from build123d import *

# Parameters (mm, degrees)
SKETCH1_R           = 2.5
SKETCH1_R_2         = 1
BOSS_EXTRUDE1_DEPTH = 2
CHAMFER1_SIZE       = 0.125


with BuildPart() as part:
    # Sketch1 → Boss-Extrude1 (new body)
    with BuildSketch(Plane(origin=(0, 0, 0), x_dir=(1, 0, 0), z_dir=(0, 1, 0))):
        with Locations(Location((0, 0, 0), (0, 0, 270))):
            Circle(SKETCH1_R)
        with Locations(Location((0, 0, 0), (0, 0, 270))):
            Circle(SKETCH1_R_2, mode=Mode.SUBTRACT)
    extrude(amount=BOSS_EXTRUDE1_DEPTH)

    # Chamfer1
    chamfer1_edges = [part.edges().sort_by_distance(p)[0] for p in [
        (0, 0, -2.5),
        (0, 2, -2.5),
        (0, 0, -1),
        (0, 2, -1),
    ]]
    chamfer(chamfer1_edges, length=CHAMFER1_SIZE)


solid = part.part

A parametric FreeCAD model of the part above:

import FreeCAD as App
import Part
import Sketcher

V = App.Vector
Q = App.Units.Quantity


def edges_at(feature, points):
    """Names of the edges that pass closest to the given points."""
    edges = feature.Shape.Edges
    near = lambda p: min(range(len(edges)), key=lambda i: edges[i].distToShape(Part.Vertex(*p))[0])
    return sorted({f"Edge{near(p) + 1}" for p in points})

doc = App.newDocument("Part")
body = doc.addObject("PartDesign::Body", "Body")

# Sketch on XZ plane
sketch1 = doc.addObject("Sketcher::SketchObject", "Sketch")
body.addObject(sketch1)
sketch1.AttachmentSupport = (doc.XZ_Plane, [""])
sketch1.MapMode = "FlatFace"
sketch1.addGeometry(Part.Circle(V(0, 0, 0), V(0, 0, 1), 2.5), False)
sketch1.addGeometry(Part.Circle(V(0, 0, 0), V(0, 0, 1), 1), False)
sketch1.addConstraint(Sketcher.Constraint("Coincident", 0, 3, -1, 1))
sketch1.addConstraint(Sketcher.Constraint("Coincident", 1, 3, -1, 1))
sketch1.addConstraint(Sketcher.Constraint("Diameter", 0, Q("5 mm")))
sketch1.addConstraint(Sketcher.Constraint("Diameter", 1, Q("2 mm")))
pad1 = doc.addObject("PartDesign::Pad", "Pad")
body.addObject(pad1)
pad1.Profile = sketch1
pad1.Length = 2
pad1.Reversed = True
doc.recompute()

chamfer = doc.addObject("PartDesign::Chamfer", "Chamfer")
body.addObject(chamfer)
chamfer.Base = (pad1, edges_at(pad1, [
    (0, 0, -2.5),
    (0, 2, -2.5),
    (0, 0, -1),
    (0, 2, -1),
]))
chamfer.Size = 0.125

doc.recompute()
